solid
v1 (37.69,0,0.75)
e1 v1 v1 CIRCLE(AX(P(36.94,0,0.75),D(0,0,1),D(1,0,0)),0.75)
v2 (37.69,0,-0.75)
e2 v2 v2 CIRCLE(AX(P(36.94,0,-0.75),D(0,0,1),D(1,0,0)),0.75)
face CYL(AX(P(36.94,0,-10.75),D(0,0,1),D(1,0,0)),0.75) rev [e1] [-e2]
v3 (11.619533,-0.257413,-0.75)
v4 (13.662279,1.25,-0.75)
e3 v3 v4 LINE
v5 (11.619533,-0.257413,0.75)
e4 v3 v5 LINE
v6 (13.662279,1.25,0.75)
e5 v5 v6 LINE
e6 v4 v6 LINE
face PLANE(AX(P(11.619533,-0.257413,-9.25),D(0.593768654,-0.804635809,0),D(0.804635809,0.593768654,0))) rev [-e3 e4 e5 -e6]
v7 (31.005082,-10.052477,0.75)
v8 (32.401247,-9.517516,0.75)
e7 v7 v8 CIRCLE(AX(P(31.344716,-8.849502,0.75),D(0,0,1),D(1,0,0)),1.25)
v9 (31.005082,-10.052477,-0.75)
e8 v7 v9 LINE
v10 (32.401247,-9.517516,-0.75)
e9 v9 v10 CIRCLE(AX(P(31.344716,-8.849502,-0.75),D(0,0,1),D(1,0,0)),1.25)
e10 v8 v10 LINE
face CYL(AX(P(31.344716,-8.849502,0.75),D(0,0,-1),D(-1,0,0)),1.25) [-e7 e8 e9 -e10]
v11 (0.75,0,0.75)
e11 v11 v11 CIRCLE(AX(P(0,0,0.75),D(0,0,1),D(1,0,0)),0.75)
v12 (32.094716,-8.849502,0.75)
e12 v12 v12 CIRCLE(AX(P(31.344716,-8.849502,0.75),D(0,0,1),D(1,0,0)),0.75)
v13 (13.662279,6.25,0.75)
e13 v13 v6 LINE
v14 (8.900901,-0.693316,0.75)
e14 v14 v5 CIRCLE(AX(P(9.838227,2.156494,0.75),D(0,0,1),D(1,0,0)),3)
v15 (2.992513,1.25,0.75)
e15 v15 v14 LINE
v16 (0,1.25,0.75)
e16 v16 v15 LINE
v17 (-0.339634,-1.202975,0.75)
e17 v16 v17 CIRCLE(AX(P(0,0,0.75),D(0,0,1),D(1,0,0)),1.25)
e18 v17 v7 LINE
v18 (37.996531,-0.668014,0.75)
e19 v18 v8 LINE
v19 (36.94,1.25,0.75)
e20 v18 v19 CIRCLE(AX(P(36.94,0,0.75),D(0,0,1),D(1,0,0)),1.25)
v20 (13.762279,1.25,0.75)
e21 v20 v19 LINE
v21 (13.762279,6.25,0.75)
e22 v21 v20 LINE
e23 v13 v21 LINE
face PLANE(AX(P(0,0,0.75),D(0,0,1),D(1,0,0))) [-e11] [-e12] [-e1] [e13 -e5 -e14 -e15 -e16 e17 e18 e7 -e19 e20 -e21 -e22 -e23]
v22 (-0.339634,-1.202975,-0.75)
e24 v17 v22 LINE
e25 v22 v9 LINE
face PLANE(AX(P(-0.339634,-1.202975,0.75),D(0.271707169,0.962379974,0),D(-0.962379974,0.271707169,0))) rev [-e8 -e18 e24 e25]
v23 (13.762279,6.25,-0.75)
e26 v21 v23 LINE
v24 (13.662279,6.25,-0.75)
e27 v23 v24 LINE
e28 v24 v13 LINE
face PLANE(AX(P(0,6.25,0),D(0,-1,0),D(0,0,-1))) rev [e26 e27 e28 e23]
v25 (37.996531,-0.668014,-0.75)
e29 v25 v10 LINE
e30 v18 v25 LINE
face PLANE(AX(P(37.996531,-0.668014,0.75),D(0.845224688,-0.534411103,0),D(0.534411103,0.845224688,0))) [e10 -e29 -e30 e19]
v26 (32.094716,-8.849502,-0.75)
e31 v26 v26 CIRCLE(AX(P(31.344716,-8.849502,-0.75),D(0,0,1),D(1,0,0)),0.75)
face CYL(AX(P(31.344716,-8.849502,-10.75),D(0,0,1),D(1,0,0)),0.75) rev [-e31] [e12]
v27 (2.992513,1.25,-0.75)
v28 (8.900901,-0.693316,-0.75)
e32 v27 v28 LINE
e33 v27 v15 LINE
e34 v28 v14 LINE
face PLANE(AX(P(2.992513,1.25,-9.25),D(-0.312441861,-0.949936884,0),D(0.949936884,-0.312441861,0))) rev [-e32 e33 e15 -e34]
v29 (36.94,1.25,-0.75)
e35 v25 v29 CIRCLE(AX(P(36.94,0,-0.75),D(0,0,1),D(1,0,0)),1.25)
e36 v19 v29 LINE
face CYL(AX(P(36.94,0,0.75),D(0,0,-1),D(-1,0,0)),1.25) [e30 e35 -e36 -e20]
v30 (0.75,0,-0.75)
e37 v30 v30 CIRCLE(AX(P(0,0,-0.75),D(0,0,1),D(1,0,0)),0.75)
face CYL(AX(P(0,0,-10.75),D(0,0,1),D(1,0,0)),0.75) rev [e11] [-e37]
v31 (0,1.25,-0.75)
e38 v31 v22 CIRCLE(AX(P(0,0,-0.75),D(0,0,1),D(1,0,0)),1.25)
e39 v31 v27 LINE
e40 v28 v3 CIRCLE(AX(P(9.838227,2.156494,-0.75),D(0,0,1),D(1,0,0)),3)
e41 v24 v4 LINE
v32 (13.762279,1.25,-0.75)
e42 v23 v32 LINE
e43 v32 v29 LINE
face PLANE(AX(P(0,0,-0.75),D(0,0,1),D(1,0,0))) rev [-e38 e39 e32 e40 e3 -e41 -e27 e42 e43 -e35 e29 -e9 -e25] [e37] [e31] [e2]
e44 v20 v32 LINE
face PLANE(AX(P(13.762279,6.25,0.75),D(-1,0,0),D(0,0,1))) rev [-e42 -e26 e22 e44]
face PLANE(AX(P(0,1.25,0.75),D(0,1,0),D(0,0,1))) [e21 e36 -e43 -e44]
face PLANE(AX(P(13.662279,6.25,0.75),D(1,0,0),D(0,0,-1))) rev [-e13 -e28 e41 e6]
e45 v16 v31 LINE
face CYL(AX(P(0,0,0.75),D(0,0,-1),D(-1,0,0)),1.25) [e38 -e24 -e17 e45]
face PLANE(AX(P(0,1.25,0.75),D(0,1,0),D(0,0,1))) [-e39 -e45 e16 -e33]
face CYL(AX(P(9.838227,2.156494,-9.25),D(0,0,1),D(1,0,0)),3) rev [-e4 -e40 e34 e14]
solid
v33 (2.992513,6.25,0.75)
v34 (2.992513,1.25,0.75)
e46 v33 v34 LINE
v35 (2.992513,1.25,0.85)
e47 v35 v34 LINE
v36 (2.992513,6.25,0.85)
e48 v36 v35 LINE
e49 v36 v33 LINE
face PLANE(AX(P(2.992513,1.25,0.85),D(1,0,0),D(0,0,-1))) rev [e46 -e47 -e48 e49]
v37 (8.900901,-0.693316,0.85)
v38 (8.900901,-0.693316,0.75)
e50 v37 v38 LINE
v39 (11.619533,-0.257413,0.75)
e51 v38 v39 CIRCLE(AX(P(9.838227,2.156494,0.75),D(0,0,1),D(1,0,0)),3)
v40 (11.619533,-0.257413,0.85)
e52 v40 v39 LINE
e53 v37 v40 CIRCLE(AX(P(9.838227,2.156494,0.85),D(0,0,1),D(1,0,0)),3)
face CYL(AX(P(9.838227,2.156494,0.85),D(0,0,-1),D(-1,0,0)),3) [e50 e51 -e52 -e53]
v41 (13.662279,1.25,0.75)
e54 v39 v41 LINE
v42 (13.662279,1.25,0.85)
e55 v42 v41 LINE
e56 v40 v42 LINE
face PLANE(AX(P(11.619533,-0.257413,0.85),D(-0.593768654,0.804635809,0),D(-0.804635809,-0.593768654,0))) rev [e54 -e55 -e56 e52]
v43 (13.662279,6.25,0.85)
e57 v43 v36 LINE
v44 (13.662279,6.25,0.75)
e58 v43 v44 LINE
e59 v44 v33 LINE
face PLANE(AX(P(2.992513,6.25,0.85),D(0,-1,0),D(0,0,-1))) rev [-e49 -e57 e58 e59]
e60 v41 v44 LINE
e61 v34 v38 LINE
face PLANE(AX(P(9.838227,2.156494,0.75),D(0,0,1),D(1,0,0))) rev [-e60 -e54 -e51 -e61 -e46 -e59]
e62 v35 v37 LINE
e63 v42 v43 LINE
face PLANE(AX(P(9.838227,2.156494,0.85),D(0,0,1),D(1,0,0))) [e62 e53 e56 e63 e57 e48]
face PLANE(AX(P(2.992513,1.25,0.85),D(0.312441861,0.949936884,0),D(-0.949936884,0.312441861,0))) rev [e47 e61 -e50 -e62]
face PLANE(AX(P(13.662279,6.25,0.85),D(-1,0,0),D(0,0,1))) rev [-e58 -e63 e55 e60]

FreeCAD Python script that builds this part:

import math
import FreeCAD as App
import Part
import Sketcher
from FreeCAD import Vector


def add_polygon(sketch, points):
    """Adds a closed chain of lines whose ends are joined by coincident constraints."""
    first, n = sketch.GeometryCount, len(points)
    for a, b in zip(points, points[1:] + points[:1]):
        sketch.addGeometry(Part.LineSegment(App.Vector(*a, 0), App.Vector(*b, 0)), False)
    for i in range(n):
        sketch.addConstraint(Sketcher.Constraint("Coincident", first + i, 2, first + (i + 1) % n, 1))

doc = App.newDocument("Part")
body = doc.addObject("PartDesign::Body", "Body")

sketch1 = body.newObject("Sketcher::SketchObject", "Sketch")
sketch1.AttachmentSupport = (doc.getObject("XY_Plane"), [""])
sketch1.MapMode = "FlatFace"
sketch1.addGeometry([
    Part.LineSegment(Vector(36.94, 1.25, 0), Vector(0, 1.25, 0)),
    Part.ArcOfCircle(Part.Circle(Vector(0, 0, 0), Vector(0, 0, 1), 1.25), math.radians(90), math.radians(254.234121)),
    Part.LineSegment(Vector(-0.339634, -1.202975, 0), Vector(31.005082, -10.052477, 0)),
    Part.ArcOfCircle(Part.Circle(Vector(31.344716, -8.849502, 0), Vector(0, 0, 1), 1.25), math.radians(-105.765879), math.radians(-32.303983)),
    Part.LineSegment(Vector(32.401247, -9.517516, 0), Vector(37.996531, -0.668014, 0)),
    Part.ArcOfCircle(Part.Circle(Vector(36.94, 0, 0), Vector(0, 0, 1), 1.25), math.radians(-32.303983), math.radians(90)),
], False)
sketch1.addConstraint([
    Sketcher.Constraint("Tangent", 0, 2, 1, 1),
    Sketcher.Constraint("Tangent", 1, 2, 2, 1),
    Sketcher.Constraint("Tangent", 2, 2, 3, 1),
    Sketcher.Constraint("Tangent", 3, 2, 4, 1),
    Sketcher.Constraint("Tangent", 4, 2, 5, 1),
    Sketcher.Constraint("Tangent", 5, 2, 0, 1),
    Sketcher.Constraint("Horizontal", 0),
    Sketcher.Constraint("Coincident", 1, 3, -1, 1),
    Sketcher.Constraint("Equal", 1, 3),
    Sketcher.Constraint("Equal", 3, 5),
    Sketcher.Constraint("Radius", 1, 1.25),
    Sketcher.Constraint("DistanceX", 0, 2, 0, 1, 36.94),
    Sketcher.Constraint("Distance", 2, 32.57),
    Sketcher.Constraint("Distance", 4, 10.47),
])
pad1 = body.newObject("PartDesign::Pad", "Pad")
pad1.Profile = sketch1
pad1.Length = 1.5
pad1.Midplane = True

sketch2 = body.newObject("Sketcher::SketchObject", "Sketch001")
sketch2.AttachmentSupport = (doc.getObject("XY_Plane"), [""])
sketch2.MapMode = "FlatFace"
sketch2.AttachmentOffset = App.Placement(Vector(0, 0, 0.75), App.Rotation())
sketch2.addGeometry([
    Part.Circle(Vector(31.344716, -8.849502, 0), Vector(0, 0, 1), 0.75),
    Part.Circle(Vector(36.94, 0, 0), Vector(0, 0, 1), 0.75),
    Part.Circle(Vector(0, 0, 0), Vector(0, 0, 1), 0.75),
], False)
sketch2.addConstraint([
    Sketcher.Constraint("Coincident", 2, 3, -1, 1),
    Sketcher.Constraint("Equal", 0, 1),
    Sketcher.Constraint("Equal", 1, 2),
    Sketcher.Constraint("PointOnObject", 1, 3, -1),
    Sketcher.Constraint("Diameter", 0, 1.5),
    Sketcher.Constraint("DistanceX", -1, 1, 1, 3, 36.94),
    Sketcher.Constraint("DistanceX", -1, 1, 0, 3, 31.344716),
    Sketcher.Constraint("DistanceY", 0, 3, -1, 1, 8.849502),
])
pocket1 = body.newObject("PartDesign::Pocket", "Pocket")
pocket1.Profile = sketch2
pocket1.Length = 11.5

sketch3 = body.newObject("Sketcher::SketchObject", "Sketch002")
sketch3.AttachmentSupport = (doc.getObject("XY_Plane"), [""])
sketch3.MapMode = "FlatFace"
sketch3.AttachmentOffset = App.Placement(Vector(0, 0, 0.75), App.Rotation())
sketch3.addGeometry([
    Part.LineSegment(Vector(2.992513, 1.25, 0), Vector(8.900901, -0.693316, 0)),
    Part.ArcOfCircle(Part.Circle(Vector(9.838227, 2.156494, 0), Vector(0, 0, 1), 3), math.radians(-108.20645), math.radians(-53.575098)),
    Part.LineSegment(Vector(11.619533, -0.257413, 0), Vector(13.662279, 1.25, 0)),
    Part.LineSegment(Vector(13.662279, 1.25, 0), Vector(2.992513, 1.25, 0)),
], False)
sketch3.addConstraint([
    Sketcher.Constraint("Tangent", 0, 2, 1, 1),
    Sketcher.Constraint("Tangent", 1, 2, 2, 1),
    Sketcher.Constraint("Coincident", 2, 2, 3, 1),
    Sketcher.Constraint("Coincident", 3, 2, 0, 1),
    Sketcher.Constraint("Horizontal", 3),
    Sketcher.Constraint("Radius", 1, 3.0),
    Sketcher.Constraint("DistanceY", -1, 1, 2, 2, 1.25),
    Sketcher.Constraint("DistanceX", -1, 1, 0, 2, 8.900901),
    Sketcher.Constraint("Distance", 0, 6.21977),
    Sketcher.Constraint("Distance", 2, 2.538721),
    Sketcher.Constraint("DistanceX", 3, 2, 3, 1, 10.669766),
])
pocket2 = body.newObject("PartDesign::Pocket", "Pocket001")
pocket2.Profile = sketch3
pocket2.Length = 10

sketch4 = body.newObject("Sketcher::SketchObject", "Sketch003")
sketch4.AttachmentSupport = (doc.getObject("XZ_Plane"), [""])
sketch4.MapMode = "FlatFace"
sketch4.AttachmentOffset = App.Placement(Vector(0, 0, -1.25), App.Rotation())
add_polygon(sketch4, [(13.662279, -0.75), (13.662279, 0.75), (13.762279, 0.75), (13.762279, -0.75)])
sketch4.addConstraint([
    Sketcher.Constraint("Vertical", 0),
    Sketcher.Constraint("Horizontal", 1),
    Sketcher.Constraint("Vertical", 2),
    Sketcher.Constraint("Horizontal", 3),
    Sketcher.Constraint("DistanceX", 1, 1, 1, 2, 0.1),
    Sketcher.Constraint("DistanceY", 0, 1, 0, 2, 1.5),
    Sketcher.Constraint("DistanceY", -1, 1, 0, 2, 0.75),
    Sketcher.Constraint("DistanceX", -1, 1, 0, 2, 13.662279),
])
pad2 = body.newObject("PartDesign::Pad", "Pad001")
pad2.Profile = sketch4
pad2.Length = 5
pad2.Reversed = True
body2 = doc.addObject("PartDesign::Body", "Body001")

sketch5 = body2.newObject("Sketcher::SketchObject", "Sketch004")
sketch5.AttachmentSupport = (doc.getObject("XY_Plane001"), [""])
sketch5.MapMode = "FlatFace"
sketch5.AttachmentOffset = App.Placement(Vector(0, 0, 0.75), App.Rotation())
sketch5.addGeometry([
    Part.LineSegment(Vector(13.662279, 1.25, 0), Vector(13.662279, 6.25, 0)),
    Part.LineSegment(Vector(13.662279, 6.25, 0), Vector(2.992513, 6.25, 0)),
    Part.LineSegment(Vector(2.992513, 6.25, 0), Vector(2.992513, 1.25, 0)),
    Part.LineSegment(Vector(2.992513, 1.25, 0), Vector(8.900901, -0.693316, 0)),
    Part.ArcOfCircle(Part.Circle(Vector(9.838227, 2.156494, 0), Vector(0, 0, 1), 3), math.radians(-108.20645), math.radians(-53.575098)),
    Part.LineSegment(Vector(11.619533, -0.257413, 0), Vector(13.662279, 1.25, 0)),
], False)
sketch5.addConstraint([
    Sketcher.Constraint("Coincident", 0, 2, 1, 1),
    Sketcher.Constraint("Coincident", 1, 2, 2, 1),
    Sketcher.Constraint("Coincident", 2, 2, 3, 1),
    Sketcher.Constraint("Tangent", 3, 2, 4, 1),
    Sketcher.Constraint("Tangent", 4, 2, 5, 1),
    Sketcher.Constraint("Coincident", 5, 2, 0, 1),
    Sketcher.Constraint("Vertical", 0),
    Sketcher.Constraint("Horizontal", 1),
    Sketcher.Constraint("Vertical", 2),
    Sketcher.Constraint("Horizontal", 2, 2, 5, 2),
    Sketcher.Constraint("Radius", 4, 3.0),
    Sketcher.Constraint("DistanceY", 0, 1, 0, 2, 5.0),
    Sketcher.Constraint("DistanceY", -1, 1, 0, 2, 6.25),
    Sketcher.Constraint("DistanceX", -1, 1, 3, 2, 8.900901),
    Sketcher.Constraint("Distance", 3, 6.21977),
    Sketcher.Constraint("Distance", 5, 2.538721),
    Sketcher.Constraint("DistanceX", 1, 2, 1, 1, 10.669766),
])
pad3 = body2.newObject("PartDesign::Pad", "Pad002")
pad3.Profile = sketch5
pad3.Length = 0.1

doc.recompute()
